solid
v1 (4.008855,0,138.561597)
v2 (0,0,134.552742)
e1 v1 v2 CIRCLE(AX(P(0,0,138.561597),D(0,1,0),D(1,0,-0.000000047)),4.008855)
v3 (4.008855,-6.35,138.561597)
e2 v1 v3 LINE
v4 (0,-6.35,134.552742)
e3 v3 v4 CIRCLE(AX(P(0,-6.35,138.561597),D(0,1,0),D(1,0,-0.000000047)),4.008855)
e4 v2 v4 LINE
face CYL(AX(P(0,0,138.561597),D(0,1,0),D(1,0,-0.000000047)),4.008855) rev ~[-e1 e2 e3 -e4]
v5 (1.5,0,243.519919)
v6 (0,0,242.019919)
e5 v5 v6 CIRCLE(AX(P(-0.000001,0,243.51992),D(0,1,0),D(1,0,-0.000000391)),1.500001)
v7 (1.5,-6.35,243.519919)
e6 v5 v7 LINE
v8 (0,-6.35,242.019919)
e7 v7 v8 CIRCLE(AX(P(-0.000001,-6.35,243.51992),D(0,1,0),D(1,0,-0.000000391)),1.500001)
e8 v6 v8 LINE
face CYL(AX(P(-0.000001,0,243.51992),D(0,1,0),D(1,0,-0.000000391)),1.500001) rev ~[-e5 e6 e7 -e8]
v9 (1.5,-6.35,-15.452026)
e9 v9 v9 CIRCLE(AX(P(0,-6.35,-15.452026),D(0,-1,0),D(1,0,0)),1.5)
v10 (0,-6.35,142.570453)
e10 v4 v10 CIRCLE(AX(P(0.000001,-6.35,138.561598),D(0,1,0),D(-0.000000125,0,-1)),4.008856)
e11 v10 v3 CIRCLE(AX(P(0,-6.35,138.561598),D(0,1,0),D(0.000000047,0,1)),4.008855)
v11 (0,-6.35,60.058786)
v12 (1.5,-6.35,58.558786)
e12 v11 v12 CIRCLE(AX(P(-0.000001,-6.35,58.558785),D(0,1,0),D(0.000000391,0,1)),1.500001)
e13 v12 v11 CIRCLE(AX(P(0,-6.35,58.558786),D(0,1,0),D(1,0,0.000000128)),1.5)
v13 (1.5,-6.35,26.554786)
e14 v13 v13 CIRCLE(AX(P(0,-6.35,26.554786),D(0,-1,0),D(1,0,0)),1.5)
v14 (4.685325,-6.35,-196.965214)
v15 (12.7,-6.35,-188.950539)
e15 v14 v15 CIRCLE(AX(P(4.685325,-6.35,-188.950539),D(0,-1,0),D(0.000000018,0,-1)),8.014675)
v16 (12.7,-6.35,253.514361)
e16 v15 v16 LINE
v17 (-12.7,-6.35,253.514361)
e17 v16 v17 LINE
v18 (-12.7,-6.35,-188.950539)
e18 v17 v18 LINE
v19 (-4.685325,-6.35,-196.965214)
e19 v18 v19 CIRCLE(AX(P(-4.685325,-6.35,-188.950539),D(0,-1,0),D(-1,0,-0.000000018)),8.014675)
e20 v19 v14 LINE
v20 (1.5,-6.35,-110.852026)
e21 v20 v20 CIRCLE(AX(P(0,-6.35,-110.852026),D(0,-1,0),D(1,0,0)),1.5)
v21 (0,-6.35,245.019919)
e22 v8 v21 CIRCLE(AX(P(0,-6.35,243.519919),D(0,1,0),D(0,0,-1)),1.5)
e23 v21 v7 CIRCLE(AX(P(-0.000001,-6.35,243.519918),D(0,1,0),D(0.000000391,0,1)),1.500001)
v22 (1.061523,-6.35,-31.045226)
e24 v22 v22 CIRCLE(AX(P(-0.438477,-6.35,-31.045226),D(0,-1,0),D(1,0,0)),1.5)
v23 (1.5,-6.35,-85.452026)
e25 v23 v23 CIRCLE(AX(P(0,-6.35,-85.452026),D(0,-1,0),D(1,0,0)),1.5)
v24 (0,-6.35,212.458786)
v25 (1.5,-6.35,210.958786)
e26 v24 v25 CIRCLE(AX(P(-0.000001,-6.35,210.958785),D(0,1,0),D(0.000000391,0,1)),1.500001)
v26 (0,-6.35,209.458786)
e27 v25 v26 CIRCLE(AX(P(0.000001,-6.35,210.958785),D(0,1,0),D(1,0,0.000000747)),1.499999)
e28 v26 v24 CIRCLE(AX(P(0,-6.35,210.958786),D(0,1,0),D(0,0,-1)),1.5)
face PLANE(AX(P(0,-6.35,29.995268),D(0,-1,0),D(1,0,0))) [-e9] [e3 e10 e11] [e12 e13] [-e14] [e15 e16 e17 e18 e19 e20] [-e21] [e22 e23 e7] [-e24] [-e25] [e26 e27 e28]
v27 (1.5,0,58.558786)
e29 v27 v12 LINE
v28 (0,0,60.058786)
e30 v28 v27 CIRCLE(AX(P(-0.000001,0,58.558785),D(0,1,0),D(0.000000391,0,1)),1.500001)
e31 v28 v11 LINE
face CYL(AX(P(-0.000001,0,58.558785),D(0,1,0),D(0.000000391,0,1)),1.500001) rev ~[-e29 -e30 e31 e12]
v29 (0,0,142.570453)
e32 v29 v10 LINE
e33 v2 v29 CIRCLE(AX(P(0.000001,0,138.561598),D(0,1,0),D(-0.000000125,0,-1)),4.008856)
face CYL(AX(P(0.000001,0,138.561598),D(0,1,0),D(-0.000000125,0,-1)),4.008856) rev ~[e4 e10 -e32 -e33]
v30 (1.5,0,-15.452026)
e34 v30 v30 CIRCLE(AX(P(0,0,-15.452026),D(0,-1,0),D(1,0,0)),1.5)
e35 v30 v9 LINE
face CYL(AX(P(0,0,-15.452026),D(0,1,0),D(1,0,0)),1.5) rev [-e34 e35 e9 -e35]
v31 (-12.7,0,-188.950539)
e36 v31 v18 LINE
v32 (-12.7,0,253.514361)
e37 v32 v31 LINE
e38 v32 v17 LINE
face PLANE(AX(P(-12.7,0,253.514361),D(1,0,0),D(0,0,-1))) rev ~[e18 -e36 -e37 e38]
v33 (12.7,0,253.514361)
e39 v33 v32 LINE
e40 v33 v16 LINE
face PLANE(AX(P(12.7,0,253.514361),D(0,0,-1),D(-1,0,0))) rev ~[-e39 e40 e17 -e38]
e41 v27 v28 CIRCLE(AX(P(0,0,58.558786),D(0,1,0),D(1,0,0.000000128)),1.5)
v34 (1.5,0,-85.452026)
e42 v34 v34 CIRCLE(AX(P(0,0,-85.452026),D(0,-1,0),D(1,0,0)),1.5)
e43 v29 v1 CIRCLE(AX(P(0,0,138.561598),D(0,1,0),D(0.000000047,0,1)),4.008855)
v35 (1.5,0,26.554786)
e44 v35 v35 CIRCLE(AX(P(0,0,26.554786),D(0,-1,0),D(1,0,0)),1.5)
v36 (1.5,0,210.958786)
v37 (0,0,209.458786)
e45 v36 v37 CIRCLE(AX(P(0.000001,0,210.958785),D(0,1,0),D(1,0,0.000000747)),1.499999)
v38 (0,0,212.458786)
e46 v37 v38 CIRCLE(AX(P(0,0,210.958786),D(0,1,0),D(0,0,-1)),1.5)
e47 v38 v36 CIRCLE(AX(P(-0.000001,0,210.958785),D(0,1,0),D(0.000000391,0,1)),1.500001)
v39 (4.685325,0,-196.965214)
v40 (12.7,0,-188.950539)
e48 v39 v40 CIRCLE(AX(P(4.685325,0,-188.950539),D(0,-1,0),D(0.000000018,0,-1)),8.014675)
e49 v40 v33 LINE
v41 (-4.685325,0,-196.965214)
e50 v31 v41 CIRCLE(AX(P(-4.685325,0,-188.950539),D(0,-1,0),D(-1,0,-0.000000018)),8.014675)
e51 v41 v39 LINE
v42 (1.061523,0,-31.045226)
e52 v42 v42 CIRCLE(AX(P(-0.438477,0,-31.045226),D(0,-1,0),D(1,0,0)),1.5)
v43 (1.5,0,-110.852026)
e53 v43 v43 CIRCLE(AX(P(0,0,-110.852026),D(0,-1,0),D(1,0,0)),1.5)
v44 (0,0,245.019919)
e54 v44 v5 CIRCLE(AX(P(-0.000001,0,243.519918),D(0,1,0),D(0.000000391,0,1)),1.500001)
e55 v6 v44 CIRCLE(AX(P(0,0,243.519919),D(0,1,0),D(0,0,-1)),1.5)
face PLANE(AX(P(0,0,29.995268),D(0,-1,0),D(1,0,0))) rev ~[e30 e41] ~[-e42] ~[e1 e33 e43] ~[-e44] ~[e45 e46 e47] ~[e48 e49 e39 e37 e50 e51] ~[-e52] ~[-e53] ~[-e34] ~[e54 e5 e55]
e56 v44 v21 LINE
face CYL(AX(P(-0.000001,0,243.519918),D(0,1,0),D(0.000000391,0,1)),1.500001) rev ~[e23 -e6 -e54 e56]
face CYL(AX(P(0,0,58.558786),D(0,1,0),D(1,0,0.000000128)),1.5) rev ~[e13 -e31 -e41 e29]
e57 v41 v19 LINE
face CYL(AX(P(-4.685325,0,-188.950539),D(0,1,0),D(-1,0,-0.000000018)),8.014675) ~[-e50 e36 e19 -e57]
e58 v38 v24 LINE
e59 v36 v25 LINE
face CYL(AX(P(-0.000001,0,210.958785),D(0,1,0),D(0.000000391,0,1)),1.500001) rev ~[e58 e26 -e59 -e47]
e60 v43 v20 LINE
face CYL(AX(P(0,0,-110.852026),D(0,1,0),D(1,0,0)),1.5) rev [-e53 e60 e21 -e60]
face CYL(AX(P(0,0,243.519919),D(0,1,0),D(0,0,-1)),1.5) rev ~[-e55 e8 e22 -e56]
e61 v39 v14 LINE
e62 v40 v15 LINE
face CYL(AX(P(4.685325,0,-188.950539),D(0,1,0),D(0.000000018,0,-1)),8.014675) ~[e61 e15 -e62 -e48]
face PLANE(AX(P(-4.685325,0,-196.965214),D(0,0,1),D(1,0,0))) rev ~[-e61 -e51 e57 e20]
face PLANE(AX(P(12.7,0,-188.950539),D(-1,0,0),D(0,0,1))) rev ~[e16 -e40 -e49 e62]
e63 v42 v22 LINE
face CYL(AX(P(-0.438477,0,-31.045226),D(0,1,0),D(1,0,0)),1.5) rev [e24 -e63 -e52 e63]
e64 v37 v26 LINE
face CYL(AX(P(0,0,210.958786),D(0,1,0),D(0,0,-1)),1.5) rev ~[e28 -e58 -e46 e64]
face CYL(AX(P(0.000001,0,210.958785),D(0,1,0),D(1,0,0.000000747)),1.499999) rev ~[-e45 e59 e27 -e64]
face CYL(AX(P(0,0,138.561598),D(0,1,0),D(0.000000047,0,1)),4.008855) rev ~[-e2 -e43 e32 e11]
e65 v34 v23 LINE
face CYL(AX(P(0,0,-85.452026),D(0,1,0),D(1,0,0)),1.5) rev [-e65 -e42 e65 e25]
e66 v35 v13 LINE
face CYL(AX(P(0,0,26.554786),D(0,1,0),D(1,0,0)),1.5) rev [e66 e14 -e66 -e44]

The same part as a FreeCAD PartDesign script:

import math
import FreeCAD as App
import Part
import Sketcher

doc = App.newDocument("Part")
body = doc.addObject("PartDesign::Body", "Body")

sketch1 = doc.addObject("Sketcher::SketchObject", "Sketch")
body.addObject(sketch1)
sketch1.AttachmentSupport = (doc.XZ_Plane, [""])
sketch1.MapMode = "FlatFace"
sketch1.addGeometry([
    Part.ArcOfCircle(Part.Circle(App.Vector(-4.7, -189, 0), App.Vector(0, 0, 1), 8), math.radians(-180), math.radians(-90)),
    Part.LineSegment(App.Vector(-4.7, -197, 0), App.Vector(4.7, -197, 0)),
    Part.ArcOfCircle(Part.Circle(App.Vector(4.7, -189, 0), App.Vector(0, 0, 1), 8), math.radians(-90), math.radians(0)),
    Part.LineSegment(App.Vector(12.7, -189, 0), App.Vector(12.7, 253.5, 0)),
    Part.LineSegment(App.Vector(12.7, 253.5, 0), App.Vector(-12.7, 253.5, 0)),
    Part.LineSegment(App.Vector(-12.7, 253.5, 0), App.Vector(-12.7, -189, 0)),
    Part.Circle(App.Vector(0, -110.9, 0), App.Vector(0, 0, 1), 1.5),
    Part.Circle(App.Vector(0, -85.5, 0), App.Vector(0, 0, 1), 1.5),
    Part.Circle(App.Vector(-0.4, -31, 0), App.Vector(0, 0, 1), 1.5),
    Part.Circle(App.Vector(0, -15.5, 0), App.Vector(0, 0, 1), 1.5),
    Part.Circle(App.Vector(0, 26.6, 0), App.Vector(0, 0, 1), 1.5),
    Part.ArcOfCircle(Part.Circle(App.Vector(0, 58.6, 0), App.Vector(0, 0, 1), 1.5), math.radians(0), math.radians(90)),
    Part.ArcOfCircle(Part.Circle(App.Vector(0, 58.6, 0), App.Vector(0, 0, 1), 1.5), math.radians(90), math.radians(360)),
    Part.ArcOfCircle(Part.Circle(App.Vector(0, 243.5, 0), App.Vector(0, 0, 1), 1.5), math.radians(-90), math.radians(0)),
    Part.ArcOfCircle(Part.Circle(App.Vector(0, 243.5, 0), App.Vector(0, 0, 1), 1.5), math.radians(90), math.radians(270)),
    Part.ArcOfCircle(Part.Circle(App.Vector(0, 243.5, 0), App.Vector(0, 0, 1), 1.5), math.radians(0), math.radians(90)),
    Part.ArcOfCircle(Part.Circle(App.Vector(0, 138.6, 0), App.Vector(0, 0, 1), 4), math.radians(-90), math.radians(0)),
    Part.ArcOfCircle(Part.Circle(App.Vector(0, 138.6, 0), App.Vector(0, 0, 1), 4), math.radians(90), math.radians(270)),
    Part.ArcOfCircle(Part.Circle(App.Vector(0, 138.6, 0), App.Vector(0, 0, 1), 4), math.radians(0), math.radians(90)),
    Part.ArcOfCircle(Part.Circle(App.Vector(0, 211, 0), App.Vector(0, 0, 1), 1.5), math.radians(-90), math.radians(0)),
    Part.ArcOfCircle(Part.Circle(App.Vector(0, 211, 0), App.Vector(0, 0, 1), 1.5), math.radians(90), math.radians(270)),
    Part.ArcOfCircle(Part.Circle(App.Vector(0, 211, 0), App.Vector(0, 0, 1), 1.5), math.radians(0), math.radians(90)),
], False)
sketch1.addConstraint([
    Sketcher.Constraint("Tangent", 0, 2, 1, 1),
    Sketcher.Constraint("Tangent", 1, 2, 2, 1),
    Sketcher.Constraint("Tangent", 2, 2, 3, 1),
    Sketcher.Constraint("Coincident", 3, 2, 4, 1),
    Sketcher.Constraint("Coincident", 4, 2, 5, 1),
    Sketcher.Constraint("Tangent", 5, 2, 0, 1),
    Sketcher.Constraint("Tangent", 11, 1, 12, 2),
    Sketcher.Constraint("Coincident", 12, 1, 11, 2),
    Sketcher.Constraint("Tangent", 13, 1, 14, 2),
    Sketcher.Constraint("Tangent", 14, 1, 15, 2),
    Sketcher.Constraint("Tangent", 15, 1, 13, 2),
    Sketcher.Constraint("Tangent", 16, 1, 17, 2),
    Sketcher.Constraint("Tangent", 17, 1, 18, 2),
    Sketcher.Constraint("Tangent", 18, 1, 16, 2),
    Sketcher.Constraint("Tangent", 19, 1, 20, 2),
    Sketcher.Constraint("Tangent", 20, 1, 21, 2),
    Sketcher.Constraint("Tangent", 21, 1, 19, 2),
    Sketcher.Constraint("Horizontal", 1),
    Sketcher.Constraint("Vertical", 3),
    Sketcher.Constraint("Horizontal", 4),
    Sketcher.Constraint("Vertical", 5),
    Sketcher.Constraint("Equal", 0, 2),
    Sketcher.Constraint("Equal", 6, 7),
    Sketcher.Constraint("Equal", 7, 8),
    Sketcher.Constraint("Equal", 8, 9),
    Sketcher.Constraint("Equal", 9, 10),
    Sketcher.Constraint("Equal", 10, 11),
    Sketcher.Constraint("Equal", 12, 13),
    Sketcher.Constraint("Equal", 15, 19),
    Sketcher.Constraint("PointOnObject", 6, 3, -2),
    Sketcher.Constraint("PointOnObject", 7, 3, -2),
    Sketcher.Constraint("PointOnObject", 9, 3, -2),
    Sketcher.Constraint("PointOnObject", 10, 3, -2),
    Sketcher.Constraint("PointOnObject", 11, 3, -2),
    Sketcher.Constraint("PointOnObject", 13, 3, -2),
    Sketcher.Constraint("PointOnObject", 16, 3, -2),
    Sketcher.Constraint("PointOnObject", 19, 3, -2),
    Sketcher.Constraint("PointOnObject", 12, 1, -2),
    Sketcher.Constraint("PointOnObject", 13, 1, -2),
    Sketcher.Constraint("PointOnObject", 14, 1, -2),
    Sketcher.Constraint("PointOnObject", 16, 1, -2),
    Sketcher.Constraint("PointOnObject", 17, 1, -2),
    Sketcher.Constraint("PointOnObject", 19, 1, -2),
    Sketcher.Constraint("PointOnObject", 20, 1, -2),
    Sketcher.Constraint("Horizontal", 12, 3, 11, 1),
    Sketcher.Constraint("Horizontal", 14, 3, 15, 1),
    Sketcher.Constraint("Horizontal", 17, 3, 18, 1),
    Sketcher.Constraint("Horizontal", 20, 3, 21, 1),
    Sketcher.Constraint("Diameter", 6, 3.0),
    Sketcher.Constraint("DistanceX", 4, 2, 4, 1, 25.4),
    Sketcher.Constraint("DistanceY", 7, 3, 9, 3, 70.0),
    Sketcher.Constraint("DistanceX", -1, 1, 2, 2, 12.7),
    Sketcher.Constraint("DistanceY", 6, 3, 7, 3, 25.4),
    Sketcher.Constraint("DistanceY", 3, 1, 3, 2, 442.4649),
    Sketcher.Constraint("Radius", 0, 8.014675),
    Sketcher.Constraint("Radius", 16, 4.008855),
    Sketcher.Constraint("DistanceY", 10, 3, 11, 3, 32.003999),
    Sketcher.Constraint("DistanceY", 7, 3, 8, 3, 54.4068),
    Sketcher.Constraint("DistanceX", 8, 3, 2, 3, 5.123802),
    Sketcher.Constraint("DistanceY", 0, 3, -1, 1, 188.950539),
    Sketcher.Constraint("DistanceY", -1, 1, 13, 3, 243.51992),
    Sketcher.Constraint("DistanceY", -1, 1, 16, 1, 134.552742),
    Sketcher.Constraint("DistanceY", 9, 3, 10, 3, 42.006812),
    Sketcher.Constraint("DistanceY", 12, 3, 16, 3, 80.002811),
    Sketcher.Constraint("DistanceY", 18, 3, 20, 3, 72.397188),
])
pad1 = doc.addObject("PartDesign::Pad", "Pad")
body.addObject(pad1)
pad1.Profile = sketch1
pad1.Length = 6.35

doc.recompute()
